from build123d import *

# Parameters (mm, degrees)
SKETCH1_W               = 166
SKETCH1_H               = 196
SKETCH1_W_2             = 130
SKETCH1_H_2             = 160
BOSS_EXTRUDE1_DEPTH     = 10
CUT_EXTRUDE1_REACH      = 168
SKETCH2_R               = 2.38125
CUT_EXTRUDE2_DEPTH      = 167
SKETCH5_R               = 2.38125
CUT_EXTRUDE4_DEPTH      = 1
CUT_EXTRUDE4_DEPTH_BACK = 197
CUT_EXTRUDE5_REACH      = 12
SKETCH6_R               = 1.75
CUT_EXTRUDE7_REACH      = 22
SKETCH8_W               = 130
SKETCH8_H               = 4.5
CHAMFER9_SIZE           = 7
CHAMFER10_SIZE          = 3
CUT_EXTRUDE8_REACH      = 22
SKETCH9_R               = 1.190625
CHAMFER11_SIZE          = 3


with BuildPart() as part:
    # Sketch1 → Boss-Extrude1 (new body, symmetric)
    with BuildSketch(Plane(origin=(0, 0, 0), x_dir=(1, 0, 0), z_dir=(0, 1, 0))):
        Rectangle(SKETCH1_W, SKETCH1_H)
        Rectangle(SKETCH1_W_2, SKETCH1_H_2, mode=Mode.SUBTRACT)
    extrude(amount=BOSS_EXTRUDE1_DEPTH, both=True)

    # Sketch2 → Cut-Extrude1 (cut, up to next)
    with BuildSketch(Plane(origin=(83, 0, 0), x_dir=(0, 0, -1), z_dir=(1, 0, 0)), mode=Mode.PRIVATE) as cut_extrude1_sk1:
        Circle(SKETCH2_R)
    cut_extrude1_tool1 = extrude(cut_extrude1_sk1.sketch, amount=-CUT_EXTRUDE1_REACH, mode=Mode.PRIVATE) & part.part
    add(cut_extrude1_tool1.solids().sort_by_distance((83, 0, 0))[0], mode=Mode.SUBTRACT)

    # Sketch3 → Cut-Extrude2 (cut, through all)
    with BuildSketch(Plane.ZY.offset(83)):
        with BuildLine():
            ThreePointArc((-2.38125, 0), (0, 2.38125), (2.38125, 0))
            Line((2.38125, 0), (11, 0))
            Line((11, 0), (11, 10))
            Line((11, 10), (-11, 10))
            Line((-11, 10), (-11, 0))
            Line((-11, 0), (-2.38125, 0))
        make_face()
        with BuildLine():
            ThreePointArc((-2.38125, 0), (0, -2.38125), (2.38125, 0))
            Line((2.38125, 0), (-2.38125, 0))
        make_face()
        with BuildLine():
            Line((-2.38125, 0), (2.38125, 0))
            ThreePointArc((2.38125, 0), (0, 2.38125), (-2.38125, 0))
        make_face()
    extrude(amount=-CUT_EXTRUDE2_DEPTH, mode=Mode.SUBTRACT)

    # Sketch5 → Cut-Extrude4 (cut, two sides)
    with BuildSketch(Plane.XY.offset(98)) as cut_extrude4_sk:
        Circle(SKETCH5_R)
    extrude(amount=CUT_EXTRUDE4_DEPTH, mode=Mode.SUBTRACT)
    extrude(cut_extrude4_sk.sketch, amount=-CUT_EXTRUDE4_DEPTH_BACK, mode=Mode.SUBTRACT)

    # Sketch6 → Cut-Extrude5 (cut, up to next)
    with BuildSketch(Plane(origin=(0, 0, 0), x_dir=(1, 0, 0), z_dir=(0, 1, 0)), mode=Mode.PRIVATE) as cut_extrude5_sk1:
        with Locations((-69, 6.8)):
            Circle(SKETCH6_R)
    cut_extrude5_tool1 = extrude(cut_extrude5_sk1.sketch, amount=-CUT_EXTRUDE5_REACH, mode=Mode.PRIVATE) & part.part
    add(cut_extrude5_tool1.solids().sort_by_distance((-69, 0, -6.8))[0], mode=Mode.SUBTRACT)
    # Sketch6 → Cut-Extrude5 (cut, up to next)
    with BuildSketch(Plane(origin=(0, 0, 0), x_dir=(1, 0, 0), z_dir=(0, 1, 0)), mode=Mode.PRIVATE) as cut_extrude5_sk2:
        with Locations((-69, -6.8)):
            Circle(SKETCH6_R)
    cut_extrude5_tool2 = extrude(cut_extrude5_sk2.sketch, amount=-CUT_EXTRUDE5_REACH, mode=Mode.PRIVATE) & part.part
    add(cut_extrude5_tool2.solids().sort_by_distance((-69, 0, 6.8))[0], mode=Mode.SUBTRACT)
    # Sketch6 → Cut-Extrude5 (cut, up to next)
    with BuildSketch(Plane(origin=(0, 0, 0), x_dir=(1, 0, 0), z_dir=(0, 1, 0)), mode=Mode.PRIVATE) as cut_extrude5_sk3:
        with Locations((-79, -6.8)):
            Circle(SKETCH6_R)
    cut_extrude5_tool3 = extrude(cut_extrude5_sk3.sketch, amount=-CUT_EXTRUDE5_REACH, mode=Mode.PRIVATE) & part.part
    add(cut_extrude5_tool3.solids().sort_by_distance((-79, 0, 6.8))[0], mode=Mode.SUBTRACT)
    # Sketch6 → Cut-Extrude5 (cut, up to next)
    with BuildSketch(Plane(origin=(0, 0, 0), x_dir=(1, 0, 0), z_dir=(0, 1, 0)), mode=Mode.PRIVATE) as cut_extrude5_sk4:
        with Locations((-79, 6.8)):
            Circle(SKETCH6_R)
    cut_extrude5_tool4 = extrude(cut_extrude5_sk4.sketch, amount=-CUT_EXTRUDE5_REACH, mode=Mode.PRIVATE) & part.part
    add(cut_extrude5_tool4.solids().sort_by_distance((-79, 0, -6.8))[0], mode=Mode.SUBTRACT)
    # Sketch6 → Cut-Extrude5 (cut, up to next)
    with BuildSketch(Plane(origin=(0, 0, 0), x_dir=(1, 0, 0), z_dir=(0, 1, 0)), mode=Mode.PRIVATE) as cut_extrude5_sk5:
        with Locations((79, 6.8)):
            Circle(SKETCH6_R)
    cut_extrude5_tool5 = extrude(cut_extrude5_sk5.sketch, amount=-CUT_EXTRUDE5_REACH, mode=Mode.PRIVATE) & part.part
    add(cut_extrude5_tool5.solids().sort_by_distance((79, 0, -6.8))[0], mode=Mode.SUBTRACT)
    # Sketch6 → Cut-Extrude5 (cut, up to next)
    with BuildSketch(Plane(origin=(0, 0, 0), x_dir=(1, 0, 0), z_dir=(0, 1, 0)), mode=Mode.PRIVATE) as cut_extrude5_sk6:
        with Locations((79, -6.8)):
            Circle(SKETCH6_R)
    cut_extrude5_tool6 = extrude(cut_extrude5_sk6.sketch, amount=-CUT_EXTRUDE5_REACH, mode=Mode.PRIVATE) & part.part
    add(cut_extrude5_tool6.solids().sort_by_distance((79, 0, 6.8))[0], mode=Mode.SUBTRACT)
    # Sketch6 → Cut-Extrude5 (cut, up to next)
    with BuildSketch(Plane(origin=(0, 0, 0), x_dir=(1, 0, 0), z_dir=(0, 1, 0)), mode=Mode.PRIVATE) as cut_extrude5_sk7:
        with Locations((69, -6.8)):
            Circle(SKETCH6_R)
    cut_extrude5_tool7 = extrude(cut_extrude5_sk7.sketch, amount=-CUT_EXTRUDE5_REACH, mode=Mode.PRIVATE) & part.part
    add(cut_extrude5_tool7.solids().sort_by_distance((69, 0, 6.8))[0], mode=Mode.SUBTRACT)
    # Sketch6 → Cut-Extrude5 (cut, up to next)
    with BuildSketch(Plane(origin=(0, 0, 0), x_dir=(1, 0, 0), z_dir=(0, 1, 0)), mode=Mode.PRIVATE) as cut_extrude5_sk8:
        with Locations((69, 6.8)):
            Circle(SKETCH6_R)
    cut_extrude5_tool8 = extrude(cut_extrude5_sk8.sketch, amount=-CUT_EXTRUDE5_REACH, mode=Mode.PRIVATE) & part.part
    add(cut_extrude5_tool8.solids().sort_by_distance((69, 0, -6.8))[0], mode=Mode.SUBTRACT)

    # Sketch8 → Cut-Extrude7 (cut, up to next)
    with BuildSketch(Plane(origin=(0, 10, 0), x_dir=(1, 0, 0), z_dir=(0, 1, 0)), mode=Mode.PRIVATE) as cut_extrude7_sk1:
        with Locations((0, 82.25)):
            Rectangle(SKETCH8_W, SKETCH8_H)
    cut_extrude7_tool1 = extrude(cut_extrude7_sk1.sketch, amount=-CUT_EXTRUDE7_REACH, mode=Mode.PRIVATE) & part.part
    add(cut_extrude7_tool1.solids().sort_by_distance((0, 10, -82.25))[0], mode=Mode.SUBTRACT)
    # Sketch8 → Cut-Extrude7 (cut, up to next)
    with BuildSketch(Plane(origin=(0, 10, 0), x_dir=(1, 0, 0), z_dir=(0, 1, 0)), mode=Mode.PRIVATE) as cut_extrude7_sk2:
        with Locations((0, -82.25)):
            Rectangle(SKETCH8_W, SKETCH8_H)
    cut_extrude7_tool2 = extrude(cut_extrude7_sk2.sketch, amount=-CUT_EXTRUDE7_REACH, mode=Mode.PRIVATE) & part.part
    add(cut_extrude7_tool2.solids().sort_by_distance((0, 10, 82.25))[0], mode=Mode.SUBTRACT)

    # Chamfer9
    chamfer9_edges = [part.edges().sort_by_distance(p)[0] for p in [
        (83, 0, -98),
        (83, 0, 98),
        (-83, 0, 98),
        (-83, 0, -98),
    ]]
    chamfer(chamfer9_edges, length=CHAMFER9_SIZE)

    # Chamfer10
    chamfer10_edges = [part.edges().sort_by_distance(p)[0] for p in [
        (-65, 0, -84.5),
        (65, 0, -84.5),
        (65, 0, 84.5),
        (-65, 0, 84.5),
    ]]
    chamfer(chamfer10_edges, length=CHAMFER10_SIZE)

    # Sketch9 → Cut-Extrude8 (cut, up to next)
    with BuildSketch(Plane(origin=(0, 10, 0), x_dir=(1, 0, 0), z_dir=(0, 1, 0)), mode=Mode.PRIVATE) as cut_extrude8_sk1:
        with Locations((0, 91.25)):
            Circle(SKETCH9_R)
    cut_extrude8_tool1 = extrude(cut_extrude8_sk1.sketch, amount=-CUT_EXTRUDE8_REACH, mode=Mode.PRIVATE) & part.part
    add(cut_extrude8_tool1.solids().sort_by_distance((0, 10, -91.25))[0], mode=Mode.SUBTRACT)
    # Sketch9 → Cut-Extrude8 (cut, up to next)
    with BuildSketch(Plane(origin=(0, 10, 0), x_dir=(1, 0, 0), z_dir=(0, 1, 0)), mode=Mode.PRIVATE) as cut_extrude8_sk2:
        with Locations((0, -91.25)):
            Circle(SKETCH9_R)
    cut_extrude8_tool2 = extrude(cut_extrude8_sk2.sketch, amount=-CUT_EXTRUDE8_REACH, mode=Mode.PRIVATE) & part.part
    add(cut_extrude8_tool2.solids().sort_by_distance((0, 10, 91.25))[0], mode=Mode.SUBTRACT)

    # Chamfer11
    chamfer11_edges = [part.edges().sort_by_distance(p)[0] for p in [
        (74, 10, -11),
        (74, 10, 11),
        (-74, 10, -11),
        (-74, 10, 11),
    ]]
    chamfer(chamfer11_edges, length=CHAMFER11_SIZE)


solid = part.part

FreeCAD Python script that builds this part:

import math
import FreeCAD as App
import Part
import Sketcher
Q = App.Units.Quantity


def edges_at(feature, points):
    """Names of the edges that pass closest to the given points."""
    edges = feature.Shape.Edges
    near = lambda p: min(range(len(edges)), key=lambda i: edges[i].distToShape(Part.Vertex(*p))[0])
    return sorted({f"Edge{near(p) + 1}" for p in points})


def add_polygon(sketch, points):
    """Adds a closed chain of lines whose ends are joined by coincident constraints."""
    first, n = sketch.GeometryCount, len(points)
    for a, b in zip(points, points[1:] + points[:1]):
        sketch.addGeometry(Part.LineSegment(App.Vector(*a, 0), App.Vector(*b, 0)), False)
    for i in range(n):
        sketch.addConstraint(Sketcher.Constraint("Coincident", first + i, 2, first + (i + 1) % n, 1))

doc = App.newDocument("Part")
body = doc.addObject("PartDesign::Body", "Body")

sketch1 = body.newObject("Sketcher::SketchObject", "Sketch")
sketch1.AttachmentSupport = (doc.getObject("XZ_Plane"), [""])
sketch1.MapMode = "FlatFace"
add_polygon(sketch1, [(-83, -98), (-83, 98), (83, 98), (83, -98)])
add_polygon(sketch1, [(65, 80), (-65, 80), (-65, -80), (65, -80)])
sketch1.addConstraint([
    Sketcher.Constraint("Vertical", 0),
    Sketcher.Constraint("Horizontal", 1),
    Sketcher.Constraint("Vertical", 2),
    Sketcher.Constraint("Horizontal", 3),
    Sketcher.Constraint("Horizontal", 4),
    Sketcher.Constraint("Vertical", 5),
    Sketcher.Constraint("Horizontal", 6),
    Sketcher.Constraint("Vertical", 7),
    Sketcher.Constraint("Symmetric", 0, 2, 2, 2, -1, 1),
    Sketcher.Constraint("Symmetric", 4, 2, 6, 2, -1, 1),
    Sketcher.Constraint("DistanceX", 1, 1, 1, 2, Q("166 mm")),
    Sketcher.Constraint("DistanceX", 4, 2, 4, 1, Q("130 mm")),
    Sketcher.Constraint("DistanceY", 0, 1, 0, 2, Q("196 mm")),
    Sketcher.Constraint("DistanceY", 5, 2, 5, 1, Q("160 mm")),
])
pad1 = body.newObject("PartDesign::Pad", "Pad")
pad1.Profile = sketch1
pad1.Length = 20
pad1.Midplane = True

sketch2 = body.newObject("Sketcher::SketchObject", "Sketch001")
sketch2.AttachmentSupport = (doc.getObject("YZ_Plane"), [""])
sketch2.MapMode = "FlatFace"
sketch2.AttachmentOffset = App.Placement(App.Vector(0, 0, 83), App.Rotation())
sketch2.addGeometry(Part.Circle(App.Vector(0, 0, 0), App.Vector(0, 0, 1), 2.4), False)
sketch2.addConstraint([
    Sketcher.Constraint("Coincident", 0, 3, -1, 1),
    Sketcher.Constraint("Diameter", 0, Q("4.7625 mm")),
])
pocket1 = body.newObject("PartDesign::Pocket", "Pocket")
pocket1.Profile = sketch2
pocket1.Type = "UpToFirst"

sketch3 = body.newObject("Sketcher::SketchObject", "Sketch002")
sketch3.AttachmentSupport = (doc.getObject("YZ_Plane"), [""])
sketch3.MapMode = "FlatFace"
sketch3.AttachmentOffset = App.Placement(App.Vector(0, 0, -83), App.Rotation())
sketch3.addGeometry([
    Part.LineSegment(App.Vector(10, -11, 0), App.Vector(0, -11, 0)),
    Part.LineSegment(App.Vector(0, -11, 0), App.Vector(0, -2.4, 0)),
    Part.ArcOfCircle(Part.Circle(App.Vector(0, 0, 0), App.Vector(0, 0, 1), 2.4), math.radians(90), math.radians(270)),
    Part.LineSegment(App.Vector(0, 2.4, 0), App.Vector(0, 11, 0)),
    Part.LineSegment(App.Vector(0, 11, 0), App.Vector(10, 11, 0)),
    Part.LineSegment(App.Vector(10, 11, 0), App.Vector(10, -11, 0)),
], False)
sketch3.addConstraint([
    Sketcher.Constraint("Coincident", 0, 2, 1, 1),
    Sketcher.Constraint("Coincident", 1, 2, 2, 2),
    Sketcher.Constraint("Coincident", 2, 1, 3, 1),
    Sketcher.Constraint("Coincident", 3, 2, 4, 1),
    Sketcher.Constraint("Coincident", 4, 2, 5, 1),
    Sketcher.Constraint("Coincident", 5, 2, 0, 1),
    Sketcher.Constraint("Horizontal", 0),
    Sketcher.Constraint("Vertical", 1),
    Sketcher.Constraint("Vertical", 3),
    Sketcher.Constraint("Horizontal", 4),
    Sketcher.Constraint("Vertical", 5),
    Sketcher.Constraint("Coincident", 2, 3, -1, 1),
    Sketcher.Constraint("Symmetric", 0, 2, 3, 2, -1, 1),
    Sketcher.Constraint("PointOnObject", 0, 2, -2),
    Sketcher.Constraint("DistanceX", 0, 2, 0, 1, Q("10 mm")),
    Sketcher.Constraint("DistanceY", 5, 2, 5, 1, Q("22 mm")),
    Sketcher.Constraint("Radius", 2, Q("2.38125 mm")),
])
pocket2 = body.newObject("PartDesign::Pocket", "Pocket001")
pocket2.Profile = sketch3
pocket2.Type = "ThroughAll"
pocket2.Reversed = True

sketch4 = body.newObject("Sketcher::SketchObject", "Sketch003")
sketch4.AttachmentSupport = (doc.getObject("XY_Plane"), [""])
sketch4.MapMode = "FlatFace"
sketch4.AttachmentOffset = App.Placement(App.Vector(0, 0, 98), App.Rotation())
sketch4.addGeometry(Part.Circle(App.Vector(0, 0, 0), App.Vector(0, 0, 1), 2.4), False)
sketch4.addConstraint([
    Sketcher.Constraint("Coincident", 0, 3, -1, 1),
    Sketcher.Constraint("Diameter", 0, Q("4.7625 mm")),
])
pocket3 = body.newObject("PartDesign::Pocket", "Pocket002")
pocket3.Profile = sketch4
pocket3.Type = "ThroughAll"
pocket3.Midplane = True

sketch5 = body.newObject("Sketcher::SketchObject", "Sketch004")
sketch5.AttachmentSupport = (doc.getObject("XZ_Plane"), [""])
sketch5.MapMode = "FlatFace"
sketch5.addGeometry(Part.Circle(App.Vector(-69, -6.8, 0), App.Vector(0, 0, 1), 1.8), False)
sketch5.addConstraint([
    Sketcher.Constraint("Diameter", 0, Q("3.5 mm")),
    Sketcher.Constraint("DistanceX", 0, 3, -1, 1, Q("69 mm")),
    Sketcher.Constraint("DistanceY", 0, 3, -1, 1, Q("6.8 mm")),
])
pocket4 = body.newObject("PartDesign::Pocket", "Pocket003")
pocket4.Profile = sketch5
pocket4.Type = "UpToFirst"
pocket4.Reversed = True

sketch6 = body.newObject("Sketcher::SketchObject", "Sketch005")
sketch6.AttachmentSupport = (doc.getObject("XZ_Plane"), [""])
sketch6.MapMode = "FlatFace"
sketch6.addGeometry(Part.Circle(App.Vector(-69, 6.8, 0), App.Vector(0, 0, 1), 1.8), False)
sketch6.addConstraint([
    Sketcher.Constraint("Diameter", 0, Q("3.5 mm")),
    Sketcher.Constraint("DistanceX", 0, 3, -1, 1, Q("69 mm")),
    Sketcher.Constraint("DistanceY", -1, 1, 0, 3, Q("6.8 mm")),
])
pocket5 = body.newObject("PartDesign::Pocket", "Pocket004")
pocket5.Profile = sketch6
pocket5.Type = "UpToFirst"
pocket5.Reversed = True

sketch7 = body.newObject("Sketcher::SketchObject", "Sketch006")
sketch7.AttachmentSupport = (doc.getObject("XZ_Plane"), [""])
sketch7.MapMode = "FlatFace"
sketch7.addGeometry(Part.Circle(App.Vector(-79, 6.8, 0), App.Vector(0, 0, 1), 1.8), False)
sketch7.addConstraint([
    Sketcher.Constraint("Diameter", 0, Q("3.5 mm")),
    Sketcher.Constraint("DistanceX", 0, 3, -1, 1, Q("79 mm")),
    Sketcher.Constraint("DistanceY", -1, 1, 0, 3, Q("6.8 mm")),
])
pocket6 = body.newObject("PartDesign::Pocket", "Pocket005")
pocket6.Profile = sketch7
pocket6.Type = "UpToFirst"
pocket6.Reversed = True

sketch8 = body.newObject("Sketcher::SketchObject", "Sketch007")
sketch8.AttachmentSupport = (doc.getObject("XZ_Plane"), [""])
sketch8.MapMode = "FlatFace"
sketch8.addGeometry(Part.Circle(App.Vector(-79, -6.8, 0), App.Vector(0, 0, 1), 1.8), False)
sketch8.addConstraint([
    Sketcher.Constraint("Diameter", 0, Q("3.5 mm")),
    Sketcher.Constraint("DistanceX", 0, 3, -1, 1, Q("79 mm")),
    Sketcher.Constraint("DistanceY", 0, 3, -1, 1, Q("6.8 mm")),
])
pocket7 = body.newObject("PartDesign::Pocket", "Pocket006")
pocket7.Profile = sketch8
pocket7.Type = "UpToFirst"
pocket7.Reversed = True

sketch9 = body.newObject("Sketcher::SketchObject", "Sketch008")
sketch9.AttachmentSupport = (doc.getObject("XZ_Plane"), [""])
sketch9.MapMode = "FlatFace"
sketch9.addGeometry(Part.Circle(App.Vector(79, -6.8, 0), App.Vector(0, 0, 1), 1.8), False)
sketch9.addConstraint([
    Sketcher.Constraint("Diameter", 0, Q("3.5 mm")),
    Sketcher.Constraint("DistanceX", -1, 1, 0, 3, Q("79 mm")),
    Sketcher.Constraint("DistanceY", 0, 3, -1, 1, Q("6.8 mm")),
])
pocket8 = body.newObject("PartDesign::Pocket", "Pocket007")
pocket8.Profile = sketch9
pocket8.Type = "UpToFirst"
pocket8.Reversed = True

sketch10 = body.newObject("Sketcher::SketchObject", "Sketch009")
sketch10.AttachmentSupport = (doc.getObject("XZ_Plane"), [""])
sketch10.MapMode = "FlatFace"
sketch10.addGeometry(Part.Circle(App.Vector(79, 6.8, 0), App.Vector(0, 0, 1), 1.8), False)
sketch10.addConstraint([
    Sketcher.Constraint("Diameter", 0, Q("3.5 mm")),
    Sketcher.Constraint("DistanceX", -1, 1, 0, 3, Q("79 mm")),
    Sketcher.Constraint("DistanceY", -1, 1, 0, 3, Q("6.8 mm")),
])
pocket9 = body.newObject("PartDesign::Pocket", "Pocket008")
pocket9.Profile = sketch10
pocket9.Type = "UpToFirst"
pocket9.Reversed = True

sketch11 = body.newObject("Sketcher::SketchObject", "Sketch010")
sketch11.AttachmentSupport = (doc.getObject("XZ_Plane"), [""])
sketch11.MapMode = "FlatFace"
sketch11.addGeometry(Part.Circle(App.Vector(69, 6.8, 0), App.Vector(0, 0, 1), 1.8), False)
sketch11.addConstraint([
    Sketcher.Constraint("Diameter", 0, Q("3.5 mm")),
    Sketcher.Constraint("DistanceX", -1, 1, 0, 3, Q("69 mm")),
    Sketcher.Constraint("DistanceY", -1, 1, 0, 3, Q("6.8 mm")),
])
pocket10 = body.newObject("PartDesign::Pocket", "Pocket009")
pocket10.Profile = sketch11
pocket10.Type = "UpToFirst"
pocket10.Reversed = True

sketch12 = body.newObject("Sketcher::SketchObject", "Sketch011")
sketch12.AttachmentSupport = (doc.getObject("XZ_Plane"), [""])
sketch12.MapMode = "FlatFace"
sketch12.addGeometry(Part.Circle(App.Vector(69, -6.8, 0), App.Vector(0, 0, 1), 1.8), False)
sketch12.addConstraint([
    Sketcher.Constraint("Diameter", 0, Q("3.5 mm")),
    Sketcher.Constraint("DistanceX", -1, 1, 0, 3, Q("69 mm")),
    Sketcher.Constraint("DistanceY", 0, 3, -1, 1, Q("6.8 mm")),
])
pocket11 = body.newObject("PartDesign::Pocket", "Pocket010")
pocket11.Profile = sketch12
pocket11.Type = "UpToFirst"
pocket11.Reversed = True

sketch13 = body.newObject("Sketcher::SketchObject", "Sketch012")
sketch13.AttachmentSupport = (doc.getObject("XZ_Plane"), [""])
sketch13.MapMode = "FlatFace"
sketch13.AttachmentOffset = App.Placement(App.Vector(0, 0, -10), App.Rotation())
add_polygon(sketch13, [(-65, -84.5), (-65, -80), (65, -80), (65, -84.5)])
sketch13.addConstraint([
    Sketcher.Constraint("Vertical", 0),
    Sketcher.Constraint("Horizontal", 1),
    Sketcher.Constraint("Vertical", 2),
    Sketcher.Constraint("Horizontal", 3),
    Sketcher.Constraint("DistanceX", 1, 1, 1, 2, Q("130 mm")),
    Sketcher.Constraint("DistanceY", 0, 1, 0, 2, Q("4.5 mm")),
    Sketcher.Constraint("DistanceX", 0, 2, -1, 1, Q("65 mm")),
    Sketcher.Constraint("DistanceY", 0, 2, -1, 1, Q("80 mm")),
])
pocket12 = body.newObject("PartDesign::Pocket", "Pocket011")
pocket12.Profile = sketch13
pocket12.Type = "UpToFirst"
pocket12.Reversed = True

sketch14 = body.newObject("Sketcher::SketchObject", "Sketch013")
sketch14.AttachmentSupport = (doc.getObject("XZ_Plane"), [""])
sketch14.MapMode = "FlatFace"
sketch14.AttachmentOffset = App.Placement(App.Vector(0, 0, -10), App.Rotation())
add_polygon(sketch14, [(-65, 80), (-65, 84.5), (65, 84.5), (65, 80)])
sketch14.addConstraint([
    Sketcher.Constraint("Vertical", 0),
    Sketcher.Constraint("Horizontal", 1),
    Sketcher.Constraint("Vertical", 2),
    Sketcher.Constraint("Horizontal", 3),
    Sketcher.Constraint("DistanceX", 1, 1, 1, 2, Q("130 mm")),
    Sketcher.Constraint("DistanceY", 0, 1, 0, 2, Q("4.5 mm")),
    Sketcher.Constraint("DistanceX", 0, 2, -1, 1, Q("65 mm")),
    Sketcher.Constraint("DistanceY", -1, 1, 2, 2, Q("80 mm")),
])
pocket13 = body.newObject("PartDesign::Pocket", "Pocket012")
pocket13.Profile = sketch14
pocket13.Type = "UpToFirst"
pocket13.Reversed = True
doc.recompute()

chamfer = body.newObject("PartDesign::Chamfer", "Chamfer")
chamfer.Base = (pocket13, edges_at(pocket13, [
    (83, 0, -98),
    (83, 0, 98),
    (-83, 0, 98),
    (-83, 0, -98),
]))
chamfer.Size = 7
doc.recompute()

chamfer2 = body.newObject("PartDesign::Chamfer", "Chamfer001")
chamfer2.Base = (chamfer, edges_at(chamfer, [
    (-65, 0, -84.5),
    (65, 0, -84.5),
    (65, 0, 84.5),
    (-65, 0, 84.5),
]))
chamfer2.Size = 3

sketch15 = body.newObject("Sketcher::SketchObject", "Sketch014")
sketch15.AttachmentSupport = (doc.getObject("XZ_Plane"), [""])
sketch15.MapMode = "FlatFace"
sketch15.AttachmentOffset = App.Placement(App.Vector(0, 0, -10), App.Rotation())
sketch15.addGeometry(Part.Circle(App.Vector(0, -91.2, 0), App.Vector(0, 0, 1), 1.2), False)
sketch15.addConstraint([
    Sketcher.Constraint("PointOnObject", 0, 3, -2),
    Sketcher.Constraint("Diameter", 0, Q("2.38125 mm")),
    Sketcher.Constraint("DistanceY", 0, 3, -1, 1, Q("91.25 mm")),
])
pocket14 = body.newObject("PartDesign::Pocket", "Pocket013")
pocket14.Profile = sketch15
pocket14.Type = "UpToFirst"
pocket14.Reversed = True

sketch16 = body.newObject("Sketcher::SketchObject", "Sketch015")
sketch16.AttachmentSupport = (doc.getObject("XZ_Plane"), [""])
sketch16.MapMode = "FlatFace"
sketch16.AttachmentOffset = App.Placement(App.Vector(0, 0, -10), App.Rotation())
sketch16.addGeometry(Part.Circle(App.Vector(0, 91.2, 0), App.Vector(0, 0, 1), 1.2), False)
sketch16.addConstraint([
    Sketcher.Constraint("PointOnObject", 0, 3, -2),
    Sketcher.Constraint("Diameter", 0, Q("2.38125 mm")),
    Sketcher.Constraint("DistanceY", -1, 1, 0, 3, Q("91.25 mm")),
])
pocket15 = body.newObject("PartDesign::Pocket", "Pocket014")
pocket15.Profile = sketch16
pocket15.Type = "UpToFirst"
pocket15.Reversed = True
doc.recompute()

chamfer3 = body.newObject("PartDesign::Chamfer", "Chamfer002")
chamfer3.Base = (pocket15, edges_at(pocket15, [
    (74, 10, -11),
    (74, 10, 11),
    (-74, 10, -11),
    (-74, 10, 11),
]))
chamfer3.Size = 3

doc.recompute()
